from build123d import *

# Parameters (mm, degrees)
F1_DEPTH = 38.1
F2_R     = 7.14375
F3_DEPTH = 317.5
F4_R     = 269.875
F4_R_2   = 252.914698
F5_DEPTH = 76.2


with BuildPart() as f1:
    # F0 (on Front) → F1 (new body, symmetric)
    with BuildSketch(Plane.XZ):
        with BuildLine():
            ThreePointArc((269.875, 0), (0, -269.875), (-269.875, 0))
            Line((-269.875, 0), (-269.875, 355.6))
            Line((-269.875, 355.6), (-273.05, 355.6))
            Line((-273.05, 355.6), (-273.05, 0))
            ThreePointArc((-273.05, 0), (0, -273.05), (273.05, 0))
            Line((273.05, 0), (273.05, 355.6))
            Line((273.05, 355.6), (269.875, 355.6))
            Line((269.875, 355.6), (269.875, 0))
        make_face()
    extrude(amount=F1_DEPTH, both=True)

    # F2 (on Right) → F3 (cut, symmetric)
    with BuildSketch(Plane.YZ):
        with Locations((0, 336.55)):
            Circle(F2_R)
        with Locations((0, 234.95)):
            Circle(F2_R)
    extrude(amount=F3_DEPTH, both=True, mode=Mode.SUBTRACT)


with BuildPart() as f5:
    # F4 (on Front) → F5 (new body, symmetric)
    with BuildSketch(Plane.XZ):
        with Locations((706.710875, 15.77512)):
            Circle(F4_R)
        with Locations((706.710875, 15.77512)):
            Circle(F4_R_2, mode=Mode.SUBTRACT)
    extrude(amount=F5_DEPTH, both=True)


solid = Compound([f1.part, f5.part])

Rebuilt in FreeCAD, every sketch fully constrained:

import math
import FreeCAD as App
import Part
import Sketcher

V = App.Vector
Q = App.Units.Quantity

doc = App.newDocument("Part")
body = doc.addObject("PartDesign::Body", "Body")

# Sketch on XZ plane
sketch1 = body.newObject("Sketcher::SketchObject", "Sketch")
sketch1.AttachmentSupport = (doc.getObject("XZ_Plane"), [""])
sketch1.MapMode = "FlatFace"
sketch1.addGeometry(Part.ArcOfCircle(Part.Circle(V(0, 0, 0), V(0, 0, 1), 269.9), math.radians(180), math.radians(360)), False)
sketch1.addGeometry(Part.LineSegment(V(-269.9, 0, 0), V(-269.9, 355.6, 0)), False)
sketch1.addGeometry(Part.LineSegment(V(-269.9, 355.6, 0), V(-273.1, 355.6, 0)), False)
sketch1.addGeometry(Part.LineSegment(V(-273.1, 355.6, 0), V(-273.1, 0, 0)), False)
sketch1.addGeometry(Part.ArcOfCircle(Part.Circle(V(0, 0, 0), V(0, 0, 1), 273.1), math.radians(180), math.radians(360)), False)
sketch1.addGeometry(Part.LineSegment(V(273.1, 0, 0), V(273.1, 355.6, 0)), False)
sketch1.addGeometry(Part.LineSegment(V(273.1, 355.6, 0), V(269.9, 355.6, 0)), False)
sketch1.addGeometry(Part.LineSegment(V(269.9, 355.6, 0), V(269.9, 0, 0)), False)
sketch1.addConstraint(Sketcher.Constraint("Tangent", 0, 1, 1, 1))
sketch1.addConstraint(Sketcher.Constraint("Coincident", 1, 2, 2, 1))
sketch1.addConstraint(Sketcher.Constraint("Coincident", 2, 2, 3, 1))
sketch1.addConstraint(Sketcher.Constraint("Tangent", 3, 2, 4, 1))
sketch1.addConstraint(Sketcher.Constraint("Tangent", 4, 2, 5, 1))
sketch1.addConstraint(Sketcher.Constraint("Coincident", 5, 2, 6, 1))
sketch1.addConstraint(Sketcher.Constraint("Coincident", 6, 2, 7, 1))
sketch1.addConstraint(Sketcher.Constraint("Tangent", 7, 2, 0, 2))
sketch1.addConstraint(Sketcher.Constraint("Vertical", 1))
sketch1.addConstraint(Sketcher.Constraint("Horizontal", 2))
sketch1.addConstraint(Sketcher.Constraint("Vertical", 3))
sketch1.addConstraint(Sketcher.Constraint("Vertical", 5))
sketch1.addConstraint(Sketcher.Constraint("Horizontal", 6))
sketch1.addConstraint(Sketcher.Constraint("Vertical", 7))
sketch1.addConstraint(Sketcher.Constraint("Coincident", 0, 3, -1, 1))
sketch1.addConstraint(Sketcher.Constraint("Coincident", 4, 3, -1, 1))
sketch1.addConstraint(Sketcher.Constraint("Horizontal", 2, 2, 5, 2))
sketch1.addConstraint(Sketcher.Constraint("DistanceY", 1, 1, 1, 2, Q("14 in")))
sketch1.addConstraint(Sketcher.Constraint("Radius", 4, Q("10.75 in")))
sketch1.addConstraint(Sketcher.Constraint("Radius", 0, Q("10.625 in")))
pad1 = body.newObject("PartDesign::Pad", "Pad")
pad1.Profile = sketch1
pad1.Length = Q("3 in")
pad1.Midplane = True

# Sketch on YZ plane
sketch2 = body.newObject("Sketcher::SketchObject", "Sketch001")
sketch2.AttachmentSupport = (doc.getObject("YZ_Plane"), [""])
sketch2.MapMode = "FlatFace"
sketch2.addGeometry(Part.Circle(V(0, 337, 0), V(0, 0, 1), 7), False)
sketch2.addGeometry(Part.Circle(V(0, 235, 0), V(0, 0, 1), 7), False)
sketch2.addConstraint(Sketcher.Constraint("Equal", 0, 1))
sketch2.addConstraint(Sketcher.Constraint("PointOnObject", 0, 3, -2))
sketch2.addConstraint(Sketcher.Constraint("PointOnObject", 1, 3, -2))
sketch2.addConstraint(Sketcher.Constraint("Diameter", 0, Q("0.5625 in")))
sketch2.addConstraint(Sketcher.Constraint("DistanceY", 1, 3, 0, 3, Q("4 in")))
sketch2.addConstraint(Sketcher.Constraint("DistanceY", -1, 1, 0, 3, Q("13.25 in")))
pocket1 = body.newObject("PartDesign::Pocket", "Pocket")
pocket1.Profile = sketch2
pocket1.Length = Q("25 in")
pocket1.Midplane = True
body2 = doc.addObject("PartDesign::Body", "Body001")

# Sketch on XZ plane
sketch3 = body2.newObject("Sketcher::SketchObject", "Sketch002")
sketch3.AttachmentSupport = (doc.getObject("XZ_Plane001"), [""])
sketch3.MapMode = "FlatFace"
sketch3.addGeometry(Part.Circle(V(707, 16, 0), V(0, 0, 1), 270), False)
sketch3.addGeometry(Part.Circle(V(707, 16, 0), V(0, 0, 1), 253), False)
sketch3.addConstraint(Sketcher.Constraint("Coincident", 1, 3, 0, 3))
sketch3.addConstraint(Sketcher.Constraint("Diameter", 0, Q("21.25 in")))
sketch3.addConstraint(Sketcher.Constraint("Diameter", 1, Q("505.829396 mm")))
sketch3.addConstraint(Sketcher.Constraint("DistanceY", -1, 1, 0, 3, Q("15.77512 mm")))
sketch3.addConstraint(Sketcher.Constraint("DistanceX", -1, 1, 0, 3, Q("706.710875 mm")))
pad2 = body2.newObject("PartDesign::Pad", "Pad001")
pad2.Profile = sketch3
pad2.Length = Q("6 in")
pad2.Midplane = True

doc.recompute()
